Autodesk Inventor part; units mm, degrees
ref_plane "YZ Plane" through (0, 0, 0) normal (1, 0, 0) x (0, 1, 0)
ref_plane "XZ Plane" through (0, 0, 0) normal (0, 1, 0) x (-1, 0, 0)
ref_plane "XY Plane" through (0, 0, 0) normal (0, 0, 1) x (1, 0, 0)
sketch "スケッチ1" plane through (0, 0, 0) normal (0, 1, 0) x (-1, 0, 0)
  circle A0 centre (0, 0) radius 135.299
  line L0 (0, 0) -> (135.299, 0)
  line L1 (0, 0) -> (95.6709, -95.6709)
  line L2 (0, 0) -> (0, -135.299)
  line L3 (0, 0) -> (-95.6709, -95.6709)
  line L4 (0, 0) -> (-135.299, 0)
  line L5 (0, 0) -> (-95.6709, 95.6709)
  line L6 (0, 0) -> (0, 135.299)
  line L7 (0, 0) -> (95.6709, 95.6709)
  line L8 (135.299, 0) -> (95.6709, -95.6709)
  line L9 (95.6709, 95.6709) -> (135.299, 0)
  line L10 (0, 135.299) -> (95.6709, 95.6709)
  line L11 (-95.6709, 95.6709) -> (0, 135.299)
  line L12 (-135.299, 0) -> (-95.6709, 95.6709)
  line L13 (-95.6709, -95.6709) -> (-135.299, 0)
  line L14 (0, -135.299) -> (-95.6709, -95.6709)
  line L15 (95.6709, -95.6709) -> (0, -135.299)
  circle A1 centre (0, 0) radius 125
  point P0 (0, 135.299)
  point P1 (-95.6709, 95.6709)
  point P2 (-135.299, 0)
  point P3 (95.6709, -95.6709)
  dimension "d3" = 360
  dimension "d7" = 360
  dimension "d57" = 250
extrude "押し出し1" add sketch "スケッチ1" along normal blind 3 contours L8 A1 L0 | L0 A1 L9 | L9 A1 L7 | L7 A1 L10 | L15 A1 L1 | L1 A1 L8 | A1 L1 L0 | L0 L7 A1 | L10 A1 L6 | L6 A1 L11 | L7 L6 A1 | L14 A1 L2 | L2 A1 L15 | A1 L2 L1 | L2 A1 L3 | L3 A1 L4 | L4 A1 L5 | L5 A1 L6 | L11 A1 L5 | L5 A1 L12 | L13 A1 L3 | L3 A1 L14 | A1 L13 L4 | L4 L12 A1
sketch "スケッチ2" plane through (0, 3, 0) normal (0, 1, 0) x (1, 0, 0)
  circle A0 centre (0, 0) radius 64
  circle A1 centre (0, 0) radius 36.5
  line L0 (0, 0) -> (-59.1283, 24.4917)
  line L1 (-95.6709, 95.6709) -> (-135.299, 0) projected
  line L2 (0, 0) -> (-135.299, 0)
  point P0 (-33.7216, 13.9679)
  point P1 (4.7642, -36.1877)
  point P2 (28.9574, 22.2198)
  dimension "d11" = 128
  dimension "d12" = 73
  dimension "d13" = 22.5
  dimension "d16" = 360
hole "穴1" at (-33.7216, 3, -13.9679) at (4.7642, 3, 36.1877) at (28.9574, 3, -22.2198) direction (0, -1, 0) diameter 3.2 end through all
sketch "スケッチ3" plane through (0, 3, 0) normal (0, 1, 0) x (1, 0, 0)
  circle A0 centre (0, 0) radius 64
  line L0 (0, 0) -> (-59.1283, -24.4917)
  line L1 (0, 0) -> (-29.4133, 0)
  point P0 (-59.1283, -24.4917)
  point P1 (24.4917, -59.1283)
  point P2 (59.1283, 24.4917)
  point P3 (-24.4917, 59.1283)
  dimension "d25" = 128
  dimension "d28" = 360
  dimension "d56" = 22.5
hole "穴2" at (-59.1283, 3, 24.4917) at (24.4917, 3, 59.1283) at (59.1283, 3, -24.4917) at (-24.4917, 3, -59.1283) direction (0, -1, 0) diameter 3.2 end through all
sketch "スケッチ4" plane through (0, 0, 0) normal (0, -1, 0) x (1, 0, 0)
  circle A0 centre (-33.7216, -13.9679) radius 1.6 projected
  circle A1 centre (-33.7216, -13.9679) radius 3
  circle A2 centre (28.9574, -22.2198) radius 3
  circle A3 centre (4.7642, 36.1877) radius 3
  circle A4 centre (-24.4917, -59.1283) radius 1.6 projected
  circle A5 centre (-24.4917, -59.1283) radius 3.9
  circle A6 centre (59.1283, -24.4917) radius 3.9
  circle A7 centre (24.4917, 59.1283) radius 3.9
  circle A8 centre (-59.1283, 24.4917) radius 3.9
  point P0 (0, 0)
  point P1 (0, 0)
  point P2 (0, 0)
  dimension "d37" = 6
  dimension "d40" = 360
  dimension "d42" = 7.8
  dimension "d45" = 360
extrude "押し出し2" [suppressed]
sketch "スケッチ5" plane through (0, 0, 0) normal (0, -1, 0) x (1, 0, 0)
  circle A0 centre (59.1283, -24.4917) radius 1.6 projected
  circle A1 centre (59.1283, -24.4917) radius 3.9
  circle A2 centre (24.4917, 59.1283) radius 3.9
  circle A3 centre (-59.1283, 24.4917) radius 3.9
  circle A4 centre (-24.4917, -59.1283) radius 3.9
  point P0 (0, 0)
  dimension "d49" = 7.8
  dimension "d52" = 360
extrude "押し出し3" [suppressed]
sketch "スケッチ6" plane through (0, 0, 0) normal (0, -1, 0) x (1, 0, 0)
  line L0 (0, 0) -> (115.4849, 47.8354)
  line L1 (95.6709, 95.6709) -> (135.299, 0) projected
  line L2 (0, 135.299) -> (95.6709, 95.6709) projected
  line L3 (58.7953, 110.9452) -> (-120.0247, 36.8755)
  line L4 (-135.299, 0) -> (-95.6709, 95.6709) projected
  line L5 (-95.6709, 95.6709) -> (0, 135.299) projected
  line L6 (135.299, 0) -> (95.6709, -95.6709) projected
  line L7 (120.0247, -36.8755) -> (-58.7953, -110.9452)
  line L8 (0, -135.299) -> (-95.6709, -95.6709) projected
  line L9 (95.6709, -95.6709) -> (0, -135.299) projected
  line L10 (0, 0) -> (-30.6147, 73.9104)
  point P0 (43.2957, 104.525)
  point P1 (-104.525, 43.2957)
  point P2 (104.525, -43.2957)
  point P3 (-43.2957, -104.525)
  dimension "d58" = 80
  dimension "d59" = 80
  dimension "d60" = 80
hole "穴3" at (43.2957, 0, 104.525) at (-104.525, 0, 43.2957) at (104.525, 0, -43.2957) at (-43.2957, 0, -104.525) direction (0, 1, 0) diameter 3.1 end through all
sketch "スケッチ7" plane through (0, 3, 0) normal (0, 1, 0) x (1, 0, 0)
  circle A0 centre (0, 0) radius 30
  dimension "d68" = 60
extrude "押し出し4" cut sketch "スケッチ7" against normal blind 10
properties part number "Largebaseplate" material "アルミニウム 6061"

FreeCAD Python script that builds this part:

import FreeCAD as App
import Part
import Sketcher
from FreeCAD import Vector
Q = App.Units.Quantity

doc = App.newDocument("Part")
params = doc.addObject("Spreadsheet::Sheet", "Params")
for row, (alias, value) in enumerate([
    ("pad1_length", "3 mm"),
    ("sketch2_diameter", "3.2 mm"),
    ("hole_diameter", "3.2 mm"),
    ("sketch3_diameter", "3.2 mm"),
    ("hole2_diameter", "3.2 mm"),
    ("sketch4_diameter", "3.1 mm"),
    ("hole3_diameter", "3.1 mm"),
    ("sketch5_diameter", "60 mm"),
    ("pocket1_length", "10 mm"),
], start=1):
    params.set(f"A{row}", alias)
    params.set(f"B{row}", "=" + value)
    params.setAlias(f"B{row}", alias)

body = doc.addObject("PartDesign::Body", "Body")

# Sketch on XZ plane
sketch1 = body.newObject("Sketcher::SketchObject", "Sketch")
sketch1.AttachmentSupport = (doc.getObject("XZ_Plane"), [""])
sketch1.MapMode = "FlatFace"
sketch1.addGeometry([
    Part.LineSegment(Vector(-135, 0, 0), Vector(-96, 96, 0)),  # 0
    Part.LineSegment(Vector(-96, 96, 0), Vector(0, 135, 0)),  # 1
    Part.LineSegment(Vector(0, 135, 0), Vector(96, 96, 0)),  # 2
    Part.LineSegment(Vector(96, 96, 0), Vector(135, 0, 0)),  # 3
    Part.LineSegment(Vector(135, 0, 0), Vector(96, -96, 0)),  # 4
    Part.LineSegment(Vector(96, -96, 0), Vector(0, -135, 0)),  # 5
    Part.LineSegment(Vector(0, -135, 0), Vector(-96, -96, 0)),  # 6
    Part.LineSegment(Vector(-96, -96, 0), Vector(-135, 0, 0)),  # 7
], False)
sketch1.addConstraint([
    Sketcher.Constraint("Coincident", 0, 2, 1, 1),
    Sketcher.Constraint("Coincident", 1, 2, 2, 1),
    Sketcher.Constraint("Coincident", 2, 2, 3, 1),
    Sketcher.Constraint("Coincident", 3, 2, 4, 1),
    Sketcher.Constraint("Coincident", 4, 2, 5, 1),
    Sketcher.Constraint("Coincident", 5, 2, 6, 1),
    Sketcher.Constraint("Coincident", 6, 2, 7, 1),
    Sketcher.Constraint("Coincident", 7, 2, 0, 1),
    Sketcher.Constraint("Symmetric", 0, 2, 4, 2, -1, 1),
    Sketcher.Constraint("Symmetric", 1, 2, 5, 2, -1, 1),
    Sketcher.Constraint("Symmetric", 2, 2, 6, 2, -1, 1),
    Sketcher.Constraint("Symmetric", 3, 2, 7, 2, -1, 1),
    Sketcher.Constraint("Symmetric", 0, 2, 2, 2, -2),
    Sketcher.Constraint("PointOnObject", 1, 2, -2),
    Sketcher.Constraint("PointOnObject", 3, 2, -1),
    Sketcher.Constraint("Perpendicular", 0, 2),
    Sketcher.Constraint("Equal", 0, 1),
    Sketcher.Constraint("Angle", 0, Q("67.5 deg")),
    Sketcher.Constraint("DistanceX", 0, 2, 3, 2, 230.97),
])
pad1 = body.newObject("PartDesign::Pad", "Pad")
pad1.Profile = sketch1
pad1.setExpression("Length", "Params.pad1_length")
pad1.Reversed = True

# Sketch on XZ plane
sketch2 = body.newObject("Sketcher::SketchObject", "Sketch001")
sketch2.AttachmentSupport = (doc.getObject("XZ_Plane"), [""])
sketch2.MapMode = "FlatFace"
sketch2.AttachmentOffset = App.Placement(Vector(0, 0, -3), App.Rotation())
sketch2.addGeometry([
    Part.Circle(Vector(-33.7, -14, 0), Vector(0, 0, 1), 1.6),
    Part.Circle(Vector(4.8, 36.2, 0), Vector(0, 0, 1), 1.6),
    Part.Circle(Vector(29, -22.2, 0), Vector(0, 0, 1), 1.6),
], False)
sketch2.addConstraint([
    Sketcher.Constraint("Equal", 0, 1),
    Sketcher.Constraint("Equal", 1, 2),
    Sketcher.Constraint("Diameter", 0, 3.2),
    Sketcher.Constraint("DistanceY", 0, 3, -1, 1, 13.968),
    Sketcher.Constraint("DistanceX", 0, 3, 2, 3, 62.679),
    Sketcher.Constraint("DistanceY", 2, 3, 0, 3, 8.252),
    Sketcher.Constraint("DistanceX", 0, 3, -1, 1, 33.7216),
    Sketcher.Constraint("DistanceX", -1, 1, 1, 3, 4.7642),
    Sketcher.Constraint("DistanceY", -1, 1, 1, 3, 36.1877),
])
sketch2.setExpression("Constraints[2]", "Params.sketch2_diameter")
doc.recompute()
hole = body.newObject("PartDesign::Hole", "Hole")
hole.Profile = sketch2
hole.ThreadType = "None"
hole.setExpression("Diameter", "Params.hole_diameter")
hole.DepthType = "ThroughAll"
hole.Reversed = True

# Sketch on XZ plane
sketch3 = body.newObject("Sketcher::SketchObject", "Sketch002")
sketch3.AttachmentSupport = (doc.getObject("XZ_Plane"), [""])
sketch3.MapMode = "FlatFace"
sketch3.AttachmentOffset = App.Placement(Vector(0, 0, -3), App.Rotation())
sketch3.addGeometry([
    Part.Circle(Vector(-59.1, 24.5, 0), Vector(0, 0, 1), 1.6),
    Part.Circle(Vector(24.5, 59.1, 0), Vector(0, 0, 1), 1.6),
    Part.Circle(Vector(59.1, -24.5, 0), Vector(0, 0, 1), 1.6),
    Part.Circle(Vector(-24.5, -59.1, 0), Vector(0, 0, 1), 1.6),
], False)
sketch3.addConstraint([
    Sketcher.Constraint("Equal", 0, 1),
    Sketcher.Constraint("Equal", 1, 2),
    Sketcher.Constraint("Equal", 2, 3),
    Sketcher.Constraint("Symmetric", 0, 3, 2, 3, -1, 1),
    Sketcher.Constraint("Symmetric", 1, 3, 3, 3, -1, 1),
    Sketcher.Constraint("Diameter", 0, 3.2),
    Sketcher.Constraint("DistanceX", 0, 3, 1, 3, 83.62),
    Sketcher.Constraint("DistanceY", 2, 3, 1, 3, 83.62),
    Sketcher.Constraint("DistanceX", 0, 3, -1, 1, 59.1283),
    Sketcher.Constraint("DistanceY", -1, 1, 0, 3, 24.4917),
])
sketch3.setExpression("Constraints[5]", "Params.sketch3_diameter")
doc.recompute()
hole2 = body.newObject("PartDesign::Hole", "Hole001")
hole2.Profile = sketch3
hole2.ThreadType = "None"
hole2.setExpression("Diameter", "Params.hole2_diameter")
hole2.DepthType = "ThroughAll"
hole2.Reversed = True

# Sketch on XZ plane
sketch4 = body.newObject("Sketcher::SketchObject", "Sketch003")
sketch4.AttachmentSupport = (doc.getObject("XZ_Plane"), [""])
sketch4.MapMode = "FlatFace"
sketch4.addGeometry([
    Part.Circle(Vector(43.3, 104.5, 0), Vector(0, 0, 1), 1.6),
    Part.Circle(Vector(-104.5, 43.3, 0), Vector(0, 0, 1), 1.6),
    Part.Circle(Vector(104.5, -43.3, 0), Vector(0, 0, 1), 1.6),
    Part.Circle(Vector(-43.3, -104.5, 0), Vector(0, 0, 1), 1.6),
], False)
sketch4.addConstraint([
    Sketcher.Constraint("Equal", 0, 1),
    Sketcher.Constraint("Equal", 1, 2),
    Sketcher.Constraint("Equal", 2, 3),
    Sketcher.Constraint("Symmetric", 1, 3, 2, 3, -1, 1),
    Sketcher.Constraint("Symmetric", 0, 3, 3, 3, -1, 1),
    Sketcher.Constraint("Diameter", 0, 3.1),
    Sketcher.Constraint("DistanceX", 1, 3, 2, 3, 209.05),
    Sketcher.Constraint("DistanceY", 3, 3, 0, 3, 209.05),
    Sketcher.Constraint("DistanceX", -1, 1, 0, 3, 43.2957),
    Sketcher.Constraint("DistanceY", -1, 1, 1, 3, 43.2957),
])
sketch4.setExpression("Constraints[5]", "Params.sketch4_diameter")
doc.recompute()
hole3 = body.newObject("PartDesign::Hole", "Hole002")
hole3.Profile = sketch4
hole3.ThreadType = "None"
hole3.setExpression("Diameter", "Params.hole3_diameter")
hole3.DepthType = "ThroughAll"

# Sketch on XZ plane
sketch5 = body.newObject("Sketcher::SketchObject", "Sketch004")
sketch5.AttachmentSupport = (doc.getObject("XZ_Plane"), [""])
sketch5.MapMode = "FlatFace"
sketch5.AttachmentOffset = App.Placement(Vector(0, 0, -3), App.Rotation())
sketch5.addGeometry(Part.Circle(Vector(0, 0, 0), Vector(0, 0, 1), 30), False)
sketch5.addConstraint([
    Sketcher.Constraint("Coincident", 0, 3, -1, 1),
    Sketcher.Constraint("Diameter", 0, 60.0),
])
sketch5.setExpression("Constraints[1]", "Params.sketch5_diameter")
pocket1 = body.newObject("PartDesign::Pocket", "Pocket")
pocket1.Profile = sketch5
pocket1.setExpression("Length", "Params.pocket1_length")
pocket1.Reversed = True

doc.recompute()
